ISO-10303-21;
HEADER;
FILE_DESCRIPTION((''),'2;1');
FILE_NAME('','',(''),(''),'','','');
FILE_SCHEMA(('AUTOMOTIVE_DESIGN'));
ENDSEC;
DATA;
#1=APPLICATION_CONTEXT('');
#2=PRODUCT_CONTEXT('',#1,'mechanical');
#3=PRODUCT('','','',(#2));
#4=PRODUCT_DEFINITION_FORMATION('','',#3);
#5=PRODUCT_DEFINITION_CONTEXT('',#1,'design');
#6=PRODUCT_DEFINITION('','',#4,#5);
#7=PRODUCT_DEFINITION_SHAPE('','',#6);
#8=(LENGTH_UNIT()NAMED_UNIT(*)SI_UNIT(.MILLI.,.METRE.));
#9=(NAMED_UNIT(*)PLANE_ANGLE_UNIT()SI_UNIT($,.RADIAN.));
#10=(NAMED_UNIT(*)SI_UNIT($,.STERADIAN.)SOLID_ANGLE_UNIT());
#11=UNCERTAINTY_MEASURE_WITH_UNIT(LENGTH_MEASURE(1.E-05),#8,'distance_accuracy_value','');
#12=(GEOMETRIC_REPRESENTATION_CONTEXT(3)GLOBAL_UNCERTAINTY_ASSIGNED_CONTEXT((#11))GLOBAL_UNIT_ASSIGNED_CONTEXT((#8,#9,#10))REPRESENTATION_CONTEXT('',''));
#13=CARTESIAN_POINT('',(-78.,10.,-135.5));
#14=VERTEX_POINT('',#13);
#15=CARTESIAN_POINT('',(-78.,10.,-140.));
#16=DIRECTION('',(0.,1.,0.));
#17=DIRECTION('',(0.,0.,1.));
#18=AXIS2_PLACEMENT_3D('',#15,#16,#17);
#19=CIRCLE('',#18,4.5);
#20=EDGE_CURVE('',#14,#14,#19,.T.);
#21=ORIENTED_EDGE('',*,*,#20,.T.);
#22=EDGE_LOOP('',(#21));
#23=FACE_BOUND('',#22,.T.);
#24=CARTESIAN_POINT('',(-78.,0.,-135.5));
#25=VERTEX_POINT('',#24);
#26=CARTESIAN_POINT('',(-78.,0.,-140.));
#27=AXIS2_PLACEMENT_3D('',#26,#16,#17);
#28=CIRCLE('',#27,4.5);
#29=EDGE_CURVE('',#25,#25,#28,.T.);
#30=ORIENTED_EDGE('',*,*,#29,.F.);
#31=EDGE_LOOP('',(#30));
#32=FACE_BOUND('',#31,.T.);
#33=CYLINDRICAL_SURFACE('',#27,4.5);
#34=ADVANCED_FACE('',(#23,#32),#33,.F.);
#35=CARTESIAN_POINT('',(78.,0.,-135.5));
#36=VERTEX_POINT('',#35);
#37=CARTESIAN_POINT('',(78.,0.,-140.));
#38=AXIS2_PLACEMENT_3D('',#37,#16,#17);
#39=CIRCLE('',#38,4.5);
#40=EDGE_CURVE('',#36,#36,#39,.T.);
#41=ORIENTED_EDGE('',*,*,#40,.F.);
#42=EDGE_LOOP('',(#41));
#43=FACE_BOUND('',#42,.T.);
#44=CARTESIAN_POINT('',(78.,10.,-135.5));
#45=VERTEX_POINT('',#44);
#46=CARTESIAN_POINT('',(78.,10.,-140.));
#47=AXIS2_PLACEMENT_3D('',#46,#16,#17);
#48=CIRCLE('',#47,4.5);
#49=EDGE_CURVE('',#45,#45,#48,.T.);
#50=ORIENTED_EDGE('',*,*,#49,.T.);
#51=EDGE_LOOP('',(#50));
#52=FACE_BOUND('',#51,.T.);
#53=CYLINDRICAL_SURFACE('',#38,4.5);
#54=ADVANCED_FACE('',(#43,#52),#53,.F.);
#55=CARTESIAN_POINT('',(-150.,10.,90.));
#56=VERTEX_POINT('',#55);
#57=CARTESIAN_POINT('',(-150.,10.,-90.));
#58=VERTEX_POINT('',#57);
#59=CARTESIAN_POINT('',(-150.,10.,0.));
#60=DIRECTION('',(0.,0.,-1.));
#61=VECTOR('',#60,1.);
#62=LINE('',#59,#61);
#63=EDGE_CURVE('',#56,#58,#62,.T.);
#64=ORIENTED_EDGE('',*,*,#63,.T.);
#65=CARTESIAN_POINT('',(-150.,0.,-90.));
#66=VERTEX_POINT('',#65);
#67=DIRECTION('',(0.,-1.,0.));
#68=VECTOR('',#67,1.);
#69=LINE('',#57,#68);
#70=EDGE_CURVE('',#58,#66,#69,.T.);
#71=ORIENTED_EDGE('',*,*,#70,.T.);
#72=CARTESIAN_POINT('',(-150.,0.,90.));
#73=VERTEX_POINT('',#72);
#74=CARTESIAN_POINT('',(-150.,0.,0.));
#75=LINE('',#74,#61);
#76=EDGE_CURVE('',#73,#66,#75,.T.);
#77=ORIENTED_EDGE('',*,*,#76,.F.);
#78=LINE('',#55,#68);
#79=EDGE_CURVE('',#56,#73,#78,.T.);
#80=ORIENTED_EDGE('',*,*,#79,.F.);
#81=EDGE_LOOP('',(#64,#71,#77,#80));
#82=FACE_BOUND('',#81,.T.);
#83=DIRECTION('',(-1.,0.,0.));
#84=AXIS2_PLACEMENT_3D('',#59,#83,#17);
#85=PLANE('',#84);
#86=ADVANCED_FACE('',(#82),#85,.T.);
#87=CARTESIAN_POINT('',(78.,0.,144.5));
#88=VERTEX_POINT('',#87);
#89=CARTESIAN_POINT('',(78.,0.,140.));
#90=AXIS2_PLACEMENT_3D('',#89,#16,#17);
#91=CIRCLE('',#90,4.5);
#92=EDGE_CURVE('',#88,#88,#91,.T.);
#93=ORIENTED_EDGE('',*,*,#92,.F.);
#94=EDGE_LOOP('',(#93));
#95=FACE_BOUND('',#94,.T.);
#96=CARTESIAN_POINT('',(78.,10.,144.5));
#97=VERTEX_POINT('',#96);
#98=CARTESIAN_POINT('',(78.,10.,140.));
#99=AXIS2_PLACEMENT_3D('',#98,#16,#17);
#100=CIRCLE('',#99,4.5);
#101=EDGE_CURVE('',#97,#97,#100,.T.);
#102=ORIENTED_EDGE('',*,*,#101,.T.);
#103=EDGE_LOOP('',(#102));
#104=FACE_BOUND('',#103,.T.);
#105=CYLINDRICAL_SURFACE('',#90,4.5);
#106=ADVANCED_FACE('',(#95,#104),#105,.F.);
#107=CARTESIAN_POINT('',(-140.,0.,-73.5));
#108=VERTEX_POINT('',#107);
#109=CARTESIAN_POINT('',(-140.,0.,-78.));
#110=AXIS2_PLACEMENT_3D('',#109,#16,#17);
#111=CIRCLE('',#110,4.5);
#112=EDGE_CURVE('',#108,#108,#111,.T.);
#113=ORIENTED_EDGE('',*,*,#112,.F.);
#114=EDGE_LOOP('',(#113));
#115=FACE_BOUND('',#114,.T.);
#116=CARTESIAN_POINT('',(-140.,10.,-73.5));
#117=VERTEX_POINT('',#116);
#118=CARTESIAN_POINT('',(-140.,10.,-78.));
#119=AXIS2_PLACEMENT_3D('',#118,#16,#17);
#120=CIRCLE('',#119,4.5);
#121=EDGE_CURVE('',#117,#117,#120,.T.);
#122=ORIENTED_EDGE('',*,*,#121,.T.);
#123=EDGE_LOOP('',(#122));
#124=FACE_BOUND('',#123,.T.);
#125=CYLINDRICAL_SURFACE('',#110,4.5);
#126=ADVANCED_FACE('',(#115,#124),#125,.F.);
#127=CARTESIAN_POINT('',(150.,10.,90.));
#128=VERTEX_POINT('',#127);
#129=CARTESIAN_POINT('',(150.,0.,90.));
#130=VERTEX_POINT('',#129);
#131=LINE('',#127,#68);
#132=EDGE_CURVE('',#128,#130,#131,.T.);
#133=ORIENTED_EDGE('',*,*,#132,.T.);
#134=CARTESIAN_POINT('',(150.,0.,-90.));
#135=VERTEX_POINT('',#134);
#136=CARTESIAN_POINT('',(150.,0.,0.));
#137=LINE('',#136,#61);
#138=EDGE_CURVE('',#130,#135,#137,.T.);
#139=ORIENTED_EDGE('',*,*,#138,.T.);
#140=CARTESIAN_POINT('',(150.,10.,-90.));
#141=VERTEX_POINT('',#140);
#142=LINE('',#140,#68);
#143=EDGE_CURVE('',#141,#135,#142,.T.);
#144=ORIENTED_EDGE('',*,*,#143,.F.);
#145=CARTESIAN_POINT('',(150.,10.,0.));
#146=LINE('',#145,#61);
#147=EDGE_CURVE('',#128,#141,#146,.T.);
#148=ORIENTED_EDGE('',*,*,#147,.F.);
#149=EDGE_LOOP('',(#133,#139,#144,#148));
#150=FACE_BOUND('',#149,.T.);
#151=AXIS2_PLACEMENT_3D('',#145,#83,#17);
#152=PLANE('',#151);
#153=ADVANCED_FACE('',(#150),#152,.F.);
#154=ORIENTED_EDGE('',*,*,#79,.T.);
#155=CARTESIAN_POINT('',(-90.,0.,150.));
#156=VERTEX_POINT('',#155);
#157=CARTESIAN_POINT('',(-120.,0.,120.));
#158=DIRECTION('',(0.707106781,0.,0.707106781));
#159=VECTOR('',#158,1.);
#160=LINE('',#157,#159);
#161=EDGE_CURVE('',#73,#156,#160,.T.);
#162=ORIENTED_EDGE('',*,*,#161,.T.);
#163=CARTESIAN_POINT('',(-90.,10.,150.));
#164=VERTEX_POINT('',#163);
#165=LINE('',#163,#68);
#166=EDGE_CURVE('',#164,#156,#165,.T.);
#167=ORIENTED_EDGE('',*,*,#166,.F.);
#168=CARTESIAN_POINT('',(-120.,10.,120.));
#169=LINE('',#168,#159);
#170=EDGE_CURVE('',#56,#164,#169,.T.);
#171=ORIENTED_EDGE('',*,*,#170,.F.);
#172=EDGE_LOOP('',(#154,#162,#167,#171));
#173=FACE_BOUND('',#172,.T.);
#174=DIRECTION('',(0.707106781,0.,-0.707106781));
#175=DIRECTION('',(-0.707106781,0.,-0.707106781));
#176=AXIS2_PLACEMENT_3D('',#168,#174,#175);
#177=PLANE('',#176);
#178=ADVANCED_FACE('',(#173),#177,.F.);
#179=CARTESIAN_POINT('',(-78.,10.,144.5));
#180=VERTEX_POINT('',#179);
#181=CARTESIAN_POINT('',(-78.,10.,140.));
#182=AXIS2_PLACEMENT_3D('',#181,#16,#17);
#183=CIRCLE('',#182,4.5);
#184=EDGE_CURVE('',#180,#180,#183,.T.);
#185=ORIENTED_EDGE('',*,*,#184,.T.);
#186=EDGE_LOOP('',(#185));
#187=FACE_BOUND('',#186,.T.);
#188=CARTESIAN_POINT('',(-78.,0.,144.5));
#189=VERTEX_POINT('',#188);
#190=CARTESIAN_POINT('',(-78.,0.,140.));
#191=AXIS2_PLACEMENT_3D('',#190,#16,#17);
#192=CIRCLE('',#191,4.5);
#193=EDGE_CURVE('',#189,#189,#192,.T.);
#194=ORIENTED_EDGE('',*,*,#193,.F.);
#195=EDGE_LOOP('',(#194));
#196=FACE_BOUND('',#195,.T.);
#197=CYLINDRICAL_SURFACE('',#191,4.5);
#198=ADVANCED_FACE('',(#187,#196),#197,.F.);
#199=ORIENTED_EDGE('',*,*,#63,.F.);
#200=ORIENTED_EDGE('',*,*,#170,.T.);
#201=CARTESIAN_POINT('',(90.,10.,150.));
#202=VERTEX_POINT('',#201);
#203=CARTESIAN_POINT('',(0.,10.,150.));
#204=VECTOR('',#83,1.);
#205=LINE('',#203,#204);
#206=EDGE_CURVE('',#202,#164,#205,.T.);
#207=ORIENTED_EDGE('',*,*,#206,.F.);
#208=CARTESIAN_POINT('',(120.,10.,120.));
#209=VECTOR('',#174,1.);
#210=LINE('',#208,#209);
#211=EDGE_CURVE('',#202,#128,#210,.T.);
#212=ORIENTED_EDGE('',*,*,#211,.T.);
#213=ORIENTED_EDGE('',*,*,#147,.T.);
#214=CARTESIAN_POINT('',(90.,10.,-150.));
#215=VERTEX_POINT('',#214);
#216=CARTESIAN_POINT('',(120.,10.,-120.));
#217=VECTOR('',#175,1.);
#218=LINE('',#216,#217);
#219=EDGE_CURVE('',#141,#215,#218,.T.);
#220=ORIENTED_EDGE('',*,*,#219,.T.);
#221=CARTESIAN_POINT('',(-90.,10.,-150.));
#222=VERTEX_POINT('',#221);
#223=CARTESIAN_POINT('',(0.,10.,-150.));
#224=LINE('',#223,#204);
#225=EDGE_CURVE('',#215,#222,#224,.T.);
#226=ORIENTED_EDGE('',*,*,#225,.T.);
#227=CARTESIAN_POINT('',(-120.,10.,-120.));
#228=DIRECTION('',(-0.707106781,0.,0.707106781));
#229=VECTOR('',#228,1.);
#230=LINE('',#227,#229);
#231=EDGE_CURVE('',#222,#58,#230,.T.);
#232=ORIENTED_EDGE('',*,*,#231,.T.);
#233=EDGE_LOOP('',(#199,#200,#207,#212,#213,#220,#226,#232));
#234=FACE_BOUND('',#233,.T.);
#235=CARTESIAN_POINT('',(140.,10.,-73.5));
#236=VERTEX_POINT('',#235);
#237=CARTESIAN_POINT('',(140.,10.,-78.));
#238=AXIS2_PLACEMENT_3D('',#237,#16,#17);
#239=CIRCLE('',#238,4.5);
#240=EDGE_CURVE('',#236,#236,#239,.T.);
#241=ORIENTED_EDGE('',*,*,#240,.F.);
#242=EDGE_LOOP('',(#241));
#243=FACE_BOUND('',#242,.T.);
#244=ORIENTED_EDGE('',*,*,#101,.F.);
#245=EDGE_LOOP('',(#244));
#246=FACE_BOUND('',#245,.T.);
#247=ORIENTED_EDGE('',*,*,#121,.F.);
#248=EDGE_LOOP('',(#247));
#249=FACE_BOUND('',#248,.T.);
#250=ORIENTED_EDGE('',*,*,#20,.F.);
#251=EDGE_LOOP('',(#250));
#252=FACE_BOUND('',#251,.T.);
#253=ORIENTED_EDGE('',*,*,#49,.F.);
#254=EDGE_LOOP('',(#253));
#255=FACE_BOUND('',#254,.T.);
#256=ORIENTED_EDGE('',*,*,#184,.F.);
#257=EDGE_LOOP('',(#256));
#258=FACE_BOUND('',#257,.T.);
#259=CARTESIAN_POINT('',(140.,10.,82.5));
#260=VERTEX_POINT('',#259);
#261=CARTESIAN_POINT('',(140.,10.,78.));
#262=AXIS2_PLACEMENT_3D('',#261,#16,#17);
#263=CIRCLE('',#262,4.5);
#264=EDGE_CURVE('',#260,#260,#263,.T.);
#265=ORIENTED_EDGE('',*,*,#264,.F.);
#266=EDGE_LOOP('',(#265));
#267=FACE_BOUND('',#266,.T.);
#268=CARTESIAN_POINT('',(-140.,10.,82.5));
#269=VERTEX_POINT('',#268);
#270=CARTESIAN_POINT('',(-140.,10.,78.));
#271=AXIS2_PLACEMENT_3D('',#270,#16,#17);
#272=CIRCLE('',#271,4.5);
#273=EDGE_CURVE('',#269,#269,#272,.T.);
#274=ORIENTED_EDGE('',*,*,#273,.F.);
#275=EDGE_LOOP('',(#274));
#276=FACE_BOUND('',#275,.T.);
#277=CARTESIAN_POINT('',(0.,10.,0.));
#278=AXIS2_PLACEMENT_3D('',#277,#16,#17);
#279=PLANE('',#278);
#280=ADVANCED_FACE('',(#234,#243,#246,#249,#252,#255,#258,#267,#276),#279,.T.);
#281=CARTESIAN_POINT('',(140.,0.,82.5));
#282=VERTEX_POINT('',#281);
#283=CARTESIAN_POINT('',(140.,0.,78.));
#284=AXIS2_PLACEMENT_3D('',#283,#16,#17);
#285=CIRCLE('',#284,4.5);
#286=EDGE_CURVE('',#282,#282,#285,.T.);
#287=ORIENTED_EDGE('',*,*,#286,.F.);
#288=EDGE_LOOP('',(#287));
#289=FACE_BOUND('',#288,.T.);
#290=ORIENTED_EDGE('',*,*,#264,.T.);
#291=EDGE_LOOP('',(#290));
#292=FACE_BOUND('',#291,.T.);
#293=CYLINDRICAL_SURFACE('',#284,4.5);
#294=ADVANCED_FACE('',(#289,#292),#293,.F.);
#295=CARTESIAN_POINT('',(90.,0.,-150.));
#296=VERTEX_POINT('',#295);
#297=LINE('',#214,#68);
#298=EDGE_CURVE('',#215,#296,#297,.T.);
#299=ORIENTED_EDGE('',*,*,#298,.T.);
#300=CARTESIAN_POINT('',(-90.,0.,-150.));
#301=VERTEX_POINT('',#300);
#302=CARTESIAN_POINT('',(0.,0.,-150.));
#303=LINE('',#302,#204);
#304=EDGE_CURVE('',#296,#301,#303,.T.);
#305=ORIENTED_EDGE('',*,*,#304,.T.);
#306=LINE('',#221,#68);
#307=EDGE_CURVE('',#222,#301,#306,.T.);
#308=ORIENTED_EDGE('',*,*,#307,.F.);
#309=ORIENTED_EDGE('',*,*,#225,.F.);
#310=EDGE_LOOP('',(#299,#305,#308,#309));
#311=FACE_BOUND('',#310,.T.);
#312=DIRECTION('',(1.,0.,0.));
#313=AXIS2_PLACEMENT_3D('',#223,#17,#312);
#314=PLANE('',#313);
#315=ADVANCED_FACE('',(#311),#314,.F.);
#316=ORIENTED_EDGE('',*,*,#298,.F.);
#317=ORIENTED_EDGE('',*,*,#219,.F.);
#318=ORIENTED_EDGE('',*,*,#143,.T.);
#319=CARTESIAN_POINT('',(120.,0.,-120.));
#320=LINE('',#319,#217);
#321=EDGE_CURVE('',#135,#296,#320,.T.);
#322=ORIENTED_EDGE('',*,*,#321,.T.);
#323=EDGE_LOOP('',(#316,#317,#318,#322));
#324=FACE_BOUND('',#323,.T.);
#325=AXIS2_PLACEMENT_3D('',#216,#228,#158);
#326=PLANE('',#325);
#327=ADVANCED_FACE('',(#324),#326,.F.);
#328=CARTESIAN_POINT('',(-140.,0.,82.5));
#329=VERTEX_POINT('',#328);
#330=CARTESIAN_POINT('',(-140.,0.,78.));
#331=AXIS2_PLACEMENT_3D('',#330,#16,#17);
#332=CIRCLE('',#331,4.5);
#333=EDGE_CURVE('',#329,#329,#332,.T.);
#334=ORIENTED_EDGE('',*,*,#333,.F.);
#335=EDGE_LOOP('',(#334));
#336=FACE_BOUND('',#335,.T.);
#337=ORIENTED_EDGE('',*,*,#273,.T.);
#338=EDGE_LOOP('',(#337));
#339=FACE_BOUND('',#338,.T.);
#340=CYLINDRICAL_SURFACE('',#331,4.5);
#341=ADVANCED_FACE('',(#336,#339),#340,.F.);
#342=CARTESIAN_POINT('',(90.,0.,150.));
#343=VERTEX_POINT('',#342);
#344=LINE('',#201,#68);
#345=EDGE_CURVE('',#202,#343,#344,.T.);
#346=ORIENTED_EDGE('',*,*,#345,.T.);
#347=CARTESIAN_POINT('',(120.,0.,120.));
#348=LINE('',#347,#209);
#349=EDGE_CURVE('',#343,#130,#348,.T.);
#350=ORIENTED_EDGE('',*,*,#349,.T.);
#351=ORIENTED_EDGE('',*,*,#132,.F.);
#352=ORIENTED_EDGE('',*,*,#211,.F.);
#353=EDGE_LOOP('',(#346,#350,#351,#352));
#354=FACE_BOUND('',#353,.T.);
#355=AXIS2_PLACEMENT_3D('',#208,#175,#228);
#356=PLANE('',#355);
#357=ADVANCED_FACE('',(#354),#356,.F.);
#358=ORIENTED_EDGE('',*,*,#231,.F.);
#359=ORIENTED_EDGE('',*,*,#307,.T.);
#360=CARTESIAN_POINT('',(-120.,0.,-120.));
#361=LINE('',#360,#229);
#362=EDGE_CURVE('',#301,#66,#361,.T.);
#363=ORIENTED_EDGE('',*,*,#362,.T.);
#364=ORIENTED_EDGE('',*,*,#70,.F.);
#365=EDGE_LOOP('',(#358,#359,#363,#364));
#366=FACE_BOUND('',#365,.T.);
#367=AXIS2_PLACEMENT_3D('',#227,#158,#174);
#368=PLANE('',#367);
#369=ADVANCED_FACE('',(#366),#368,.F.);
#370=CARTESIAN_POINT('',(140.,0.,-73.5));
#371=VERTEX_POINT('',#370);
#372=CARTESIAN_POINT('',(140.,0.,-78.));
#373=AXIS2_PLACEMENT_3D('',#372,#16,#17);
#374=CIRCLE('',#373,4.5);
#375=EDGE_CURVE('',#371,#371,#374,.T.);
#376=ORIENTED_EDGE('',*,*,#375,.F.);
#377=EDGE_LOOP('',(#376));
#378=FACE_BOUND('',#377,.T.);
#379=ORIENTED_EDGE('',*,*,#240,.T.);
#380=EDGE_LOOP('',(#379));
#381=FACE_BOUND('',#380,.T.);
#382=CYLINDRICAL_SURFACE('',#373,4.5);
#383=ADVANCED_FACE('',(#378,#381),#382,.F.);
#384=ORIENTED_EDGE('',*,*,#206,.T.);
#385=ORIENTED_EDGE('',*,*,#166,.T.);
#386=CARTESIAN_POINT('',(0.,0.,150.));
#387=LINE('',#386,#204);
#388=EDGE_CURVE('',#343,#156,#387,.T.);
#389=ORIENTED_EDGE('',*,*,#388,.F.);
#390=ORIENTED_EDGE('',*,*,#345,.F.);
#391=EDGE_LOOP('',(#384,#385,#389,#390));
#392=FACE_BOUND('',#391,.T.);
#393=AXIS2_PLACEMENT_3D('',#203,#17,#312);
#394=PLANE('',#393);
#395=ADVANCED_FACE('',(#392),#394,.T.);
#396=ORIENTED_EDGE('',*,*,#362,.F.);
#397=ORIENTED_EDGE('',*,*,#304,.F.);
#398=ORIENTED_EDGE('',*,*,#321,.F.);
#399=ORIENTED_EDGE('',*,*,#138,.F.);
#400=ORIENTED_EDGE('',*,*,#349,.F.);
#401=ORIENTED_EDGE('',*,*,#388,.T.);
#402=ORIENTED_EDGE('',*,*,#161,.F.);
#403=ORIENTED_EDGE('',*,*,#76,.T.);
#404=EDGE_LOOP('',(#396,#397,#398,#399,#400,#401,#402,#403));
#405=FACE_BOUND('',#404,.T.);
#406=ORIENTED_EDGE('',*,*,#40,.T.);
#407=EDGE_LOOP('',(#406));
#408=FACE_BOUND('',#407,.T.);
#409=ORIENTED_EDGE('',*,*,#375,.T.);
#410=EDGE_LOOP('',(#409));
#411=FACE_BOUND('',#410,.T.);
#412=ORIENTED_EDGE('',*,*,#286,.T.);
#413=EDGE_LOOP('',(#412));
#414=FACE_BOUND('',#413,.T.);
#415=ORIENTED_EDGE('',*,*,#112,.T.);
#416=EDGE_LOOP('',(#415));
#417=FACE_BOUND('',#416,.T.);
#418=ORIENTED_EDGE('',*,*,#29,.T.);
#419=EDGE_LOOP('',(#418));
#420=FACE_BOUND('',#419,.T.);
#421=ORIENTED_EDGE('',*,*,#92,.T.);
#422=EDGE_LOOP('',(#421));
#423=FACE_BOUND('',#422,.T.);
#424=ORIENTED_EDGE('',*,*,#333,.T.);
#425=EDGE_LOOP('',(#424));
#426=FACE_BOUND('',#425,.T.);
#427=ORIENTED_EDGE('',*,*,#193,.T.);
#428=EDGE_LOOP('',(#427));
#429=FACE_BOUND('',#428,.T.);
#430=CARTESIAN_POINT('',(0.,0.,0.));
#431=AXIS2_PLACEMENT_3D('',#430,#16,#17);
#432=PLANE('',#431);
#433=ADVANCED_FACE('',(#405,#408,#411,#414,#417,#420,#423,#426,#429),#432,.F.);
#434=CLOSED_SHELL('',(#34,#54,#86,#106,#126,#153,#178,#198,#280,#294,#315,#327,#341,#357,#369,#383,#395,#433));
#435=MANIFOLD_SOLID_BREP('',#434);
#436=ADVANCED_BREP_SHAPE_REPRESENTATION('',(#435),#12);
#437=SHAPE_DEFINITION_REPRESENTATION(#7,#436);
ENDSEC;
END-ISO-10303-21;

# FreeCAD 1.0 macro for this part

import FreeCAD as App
import Part
import Sketcher

V = App.Vector

doc = App.newDocument("Part")
params = doc.addObject("Spreadsheet::Sheet", "Params")
for row, (alias, value) in enumerate([
    ("sketch1_width", "180 mm"),
    ("pad1_length", "10 mm"),
    ("sketch2_diameter", "9 mm"),
], start=1):
    params.set(f"A{row}", alias)
    params.set(f"B{row}", "=" + value)
    params.setAlias(f"B{row}", alias)

body = doc.addObject("PartDesign::Body", "Body")

# Sketch on XZ plane
sketch1 = body.newObject("Sketcher::SketchObject", "Sketch")
sketch1.AttachmentSupport = (doc.getObject("XZ_Plane"), [""])
sketch1.MapMode = "FlatFace"
sketch1.addGeometry(Part.LineSegment(V(-150, -90, 0), V(-150, 90, 0)), False)
sketch1.addGeometry(Part.LineSegment(V(-150, 90, 0), V(-90, 150, 0)), False)
sketch1.addGeometry(Part.LineSegment(V(-90, 150, 0), V(90, 150, 0)), False)
sketch1.addGeometry(Part.LineSegment(V(90, 150, 0), V(150, 90, 0)), False)
sketch1.addGeometry(Part.LineSegment(V(150, 90, 0), V(150, -90, 0)), False)
sketch1.addGeometry(Part.LineSegment(V(150, -90, 0), V(90, -150, 0)), False)
sketch1.addGeometry(Part.LineSegment(V(90, -150, 0), V(-90, -150, 0)), False)
sketch1.addGeometry(Part.LineSegment(V(-90, -150, 0), V(-150, -90, 0)), False)
sketch1.addConstraint(Sketcher.Constraint("Coincident", 0, 2, 1, 1))
sketch1.addConstraint(Sketcher.Constraint("Coincident", 1, 2, 2, 1))
sketch1.addConstraint(Sketcher.Constraint("Coincident", 2, 2, 3, 1))
sketch1.addConstraint(Sketcher.Constraint("Coincident", 3, 2, 4, 1))
sketch1.addConstraint(Sketcher.Constraint("Coincident", 4, 2, 5, 1))
sketch1.addConstraint(Sketcher.Constraint("Coincident", 5, 2, 6, 1))
sketch1.addConstraint(Sketcher.Constraint("Coincident", 6, 2, 7, 1))
sketch1.addConstraint(Sketcher.Constraint("Coincident", 7, 2, 0, 1))
sketch1.addConstraint(Sketcher.Constraint("Vertical", 0))
sketch1.addConstraint(Sketcher.Constraint("Horizontal", 2))
sketch1.addConstraint(Sketcher.Constraint("Vertical", 4))
sketch1.addConstraint(Sketcher.Constraint("Horizontal", 6))
sketch1.addConstraint(Sketcher.Constraint("Symmetric", 0, 2, 4, 2, -1, 1))
sketch1.addConstraint(Sketcher.Constraint("Symmetric", 1, 2, 5, 2, -1, 1))
sketch1.addConstraint(Sketcher.Constraint("Perpendicular", 1, 3))
sketch1.addConstraint(Sketcher.Constraint("Perpendicular", 5, 7))
sketch1.addConstraint(Sketcher.Constraint("Horizontal", 0, 2, 3, 2))
sketch1.addConstraint(Sketcher.Constraint("Horizontal", 4, 2, 7, 2))
sketch1.addConstraint(Sketcher.Constraint("Vertical", 2, 2, 5, 2))
sketch1.addConstraint(Sketcher.Constraint("Equal", 6, 0))
sketch1.addConstraint(Sketcher.Constraint("DistanceX", 2, 1, 2, 2, 180.0))
sketch1.addConstraint(Sketcher.Constraint("DistanceX", 0, 2, -1, 1, 150.0))
sketch1.setExpression("Constraints[20]", "Params.sketch1_width")
pad1 = body.newObject("PartDesign::Pad", "Pad")
pad1.Profile = sketch1
pad1.setExpression("Length", "Params.pad1_length")
pad1.Reversed = True

# Sketch on XZ plane
sketch2 = body.newObject("Sketcher::SketchObject", "Sketch001")
sketch2.AttachmentSupport = (doc.getObject("XZ_Plane"), [""])
sketch2.MapMode = "FlatFace"
sketch2.AttachmentOffset = App.Placement(V(0, 0, -10), App.Rotation())
sketch2.addGeometry(Part.Circle(V(-78, -140, 0), V(0, 0, 1), 4.5), False)
sketch2.addGeometry(Part.Circle(V(-140, -78, 0), V(0, 0, 1), 4.5), False)
sketch2.addGeometry(Part.Circle(V(-140, 78, 0), V(0, 0, 1), 4.5), False)
sketch2.addGeometry(Part.Circle(V(-78, 140, 0), V(0, 0, 1), 4.5), False)
sketch2.addGeometry(Part.Circle(V(78, 140, 0), V(0, 0, 1), 4.5), False)
sketch2.addGeometry(Part.Circle(V(140, 78, 0), V(0, 0, 1), 4.5), False)
sketch2.addGeometry(Part.Circle(V(140, -78, 0), V(0, 0, 1), 4.5), False)
sketch2.addGeometry(Part.Circle(V(78, -140, 0), V(0, 0, 1), 4.5), False)
sketch2.addConstraint(Sketcher.Constraint("Equal", 0, 1))
sketch2.addConstraint(Sketcher.Constraint("Equal", 1, 2))
sketch2.addConstraint(Sketcher.Constraint("Equal", 2, 3))
sketch2.addConstraint(Sketcher.Constraint("Equal", 3, 4))
sketch2.addConstraint(Sketcher.Constraint("Equal", 4, 5))
sketch2.addConstraint(Sketcher.Constraint("Equal", 5, 6))
sketch2.addConstraint(Sketcher.Constraint("Equal", 6, 7))
sketch2.addConstraint(Sketcher.Constraint("Symmetric", 0, 3, 4, 3, -1, 1))
sketch2.addConstraint(Sketcher.Constraint("Symmetric", 1, 3, 5, 3, -1, 1))
sketch2.addConstraint(Sketcher.Constraint("Symmetric", 2, 3, 6, 3, -1, 1))
sketch2.addConstraint(Sketcher.Constraint("Symmetric", 3, 3, 7, 3, -1, 1))
sketch2.addConstraint(Sketcher.Constraint("Symmetric", 3, 3, 4, 3, -2))
sketch2.addConstraint(Sketcher.Constraint("Symmetric", 2, 3, 5, 3, -2))
sketch2.addConstraint(Sketcher.Constraint("Diameter", 0, 9.0))
sketch2.addConstraint(Sketcher.Constraint("DistanceX", 0, 3, -1, 1, 78.0))
sketch2.addConstraint(Sketcher.Constraint("DistanceY", 0, 3, -1, 1, 140.0))
sketch2.addConstraint(Sketcher.Constraint("DistanceX", 1, 3, -1, 1, 140.0))
sketch2.addConstraint(Sketcher.Constraint("DistanceY", 1, 3, -1, 1, 78.0))
sketch2.setExpression("Constraints[13]", "Params.sketch2_diameter")
pocket1 = body.newObject("PartDesign::Pocket", "Pocket")
pocket1.Profile = sketch2
pocket1.Type = "ThroughAll"
pocket1.Reversed = True

doc.recompute()
